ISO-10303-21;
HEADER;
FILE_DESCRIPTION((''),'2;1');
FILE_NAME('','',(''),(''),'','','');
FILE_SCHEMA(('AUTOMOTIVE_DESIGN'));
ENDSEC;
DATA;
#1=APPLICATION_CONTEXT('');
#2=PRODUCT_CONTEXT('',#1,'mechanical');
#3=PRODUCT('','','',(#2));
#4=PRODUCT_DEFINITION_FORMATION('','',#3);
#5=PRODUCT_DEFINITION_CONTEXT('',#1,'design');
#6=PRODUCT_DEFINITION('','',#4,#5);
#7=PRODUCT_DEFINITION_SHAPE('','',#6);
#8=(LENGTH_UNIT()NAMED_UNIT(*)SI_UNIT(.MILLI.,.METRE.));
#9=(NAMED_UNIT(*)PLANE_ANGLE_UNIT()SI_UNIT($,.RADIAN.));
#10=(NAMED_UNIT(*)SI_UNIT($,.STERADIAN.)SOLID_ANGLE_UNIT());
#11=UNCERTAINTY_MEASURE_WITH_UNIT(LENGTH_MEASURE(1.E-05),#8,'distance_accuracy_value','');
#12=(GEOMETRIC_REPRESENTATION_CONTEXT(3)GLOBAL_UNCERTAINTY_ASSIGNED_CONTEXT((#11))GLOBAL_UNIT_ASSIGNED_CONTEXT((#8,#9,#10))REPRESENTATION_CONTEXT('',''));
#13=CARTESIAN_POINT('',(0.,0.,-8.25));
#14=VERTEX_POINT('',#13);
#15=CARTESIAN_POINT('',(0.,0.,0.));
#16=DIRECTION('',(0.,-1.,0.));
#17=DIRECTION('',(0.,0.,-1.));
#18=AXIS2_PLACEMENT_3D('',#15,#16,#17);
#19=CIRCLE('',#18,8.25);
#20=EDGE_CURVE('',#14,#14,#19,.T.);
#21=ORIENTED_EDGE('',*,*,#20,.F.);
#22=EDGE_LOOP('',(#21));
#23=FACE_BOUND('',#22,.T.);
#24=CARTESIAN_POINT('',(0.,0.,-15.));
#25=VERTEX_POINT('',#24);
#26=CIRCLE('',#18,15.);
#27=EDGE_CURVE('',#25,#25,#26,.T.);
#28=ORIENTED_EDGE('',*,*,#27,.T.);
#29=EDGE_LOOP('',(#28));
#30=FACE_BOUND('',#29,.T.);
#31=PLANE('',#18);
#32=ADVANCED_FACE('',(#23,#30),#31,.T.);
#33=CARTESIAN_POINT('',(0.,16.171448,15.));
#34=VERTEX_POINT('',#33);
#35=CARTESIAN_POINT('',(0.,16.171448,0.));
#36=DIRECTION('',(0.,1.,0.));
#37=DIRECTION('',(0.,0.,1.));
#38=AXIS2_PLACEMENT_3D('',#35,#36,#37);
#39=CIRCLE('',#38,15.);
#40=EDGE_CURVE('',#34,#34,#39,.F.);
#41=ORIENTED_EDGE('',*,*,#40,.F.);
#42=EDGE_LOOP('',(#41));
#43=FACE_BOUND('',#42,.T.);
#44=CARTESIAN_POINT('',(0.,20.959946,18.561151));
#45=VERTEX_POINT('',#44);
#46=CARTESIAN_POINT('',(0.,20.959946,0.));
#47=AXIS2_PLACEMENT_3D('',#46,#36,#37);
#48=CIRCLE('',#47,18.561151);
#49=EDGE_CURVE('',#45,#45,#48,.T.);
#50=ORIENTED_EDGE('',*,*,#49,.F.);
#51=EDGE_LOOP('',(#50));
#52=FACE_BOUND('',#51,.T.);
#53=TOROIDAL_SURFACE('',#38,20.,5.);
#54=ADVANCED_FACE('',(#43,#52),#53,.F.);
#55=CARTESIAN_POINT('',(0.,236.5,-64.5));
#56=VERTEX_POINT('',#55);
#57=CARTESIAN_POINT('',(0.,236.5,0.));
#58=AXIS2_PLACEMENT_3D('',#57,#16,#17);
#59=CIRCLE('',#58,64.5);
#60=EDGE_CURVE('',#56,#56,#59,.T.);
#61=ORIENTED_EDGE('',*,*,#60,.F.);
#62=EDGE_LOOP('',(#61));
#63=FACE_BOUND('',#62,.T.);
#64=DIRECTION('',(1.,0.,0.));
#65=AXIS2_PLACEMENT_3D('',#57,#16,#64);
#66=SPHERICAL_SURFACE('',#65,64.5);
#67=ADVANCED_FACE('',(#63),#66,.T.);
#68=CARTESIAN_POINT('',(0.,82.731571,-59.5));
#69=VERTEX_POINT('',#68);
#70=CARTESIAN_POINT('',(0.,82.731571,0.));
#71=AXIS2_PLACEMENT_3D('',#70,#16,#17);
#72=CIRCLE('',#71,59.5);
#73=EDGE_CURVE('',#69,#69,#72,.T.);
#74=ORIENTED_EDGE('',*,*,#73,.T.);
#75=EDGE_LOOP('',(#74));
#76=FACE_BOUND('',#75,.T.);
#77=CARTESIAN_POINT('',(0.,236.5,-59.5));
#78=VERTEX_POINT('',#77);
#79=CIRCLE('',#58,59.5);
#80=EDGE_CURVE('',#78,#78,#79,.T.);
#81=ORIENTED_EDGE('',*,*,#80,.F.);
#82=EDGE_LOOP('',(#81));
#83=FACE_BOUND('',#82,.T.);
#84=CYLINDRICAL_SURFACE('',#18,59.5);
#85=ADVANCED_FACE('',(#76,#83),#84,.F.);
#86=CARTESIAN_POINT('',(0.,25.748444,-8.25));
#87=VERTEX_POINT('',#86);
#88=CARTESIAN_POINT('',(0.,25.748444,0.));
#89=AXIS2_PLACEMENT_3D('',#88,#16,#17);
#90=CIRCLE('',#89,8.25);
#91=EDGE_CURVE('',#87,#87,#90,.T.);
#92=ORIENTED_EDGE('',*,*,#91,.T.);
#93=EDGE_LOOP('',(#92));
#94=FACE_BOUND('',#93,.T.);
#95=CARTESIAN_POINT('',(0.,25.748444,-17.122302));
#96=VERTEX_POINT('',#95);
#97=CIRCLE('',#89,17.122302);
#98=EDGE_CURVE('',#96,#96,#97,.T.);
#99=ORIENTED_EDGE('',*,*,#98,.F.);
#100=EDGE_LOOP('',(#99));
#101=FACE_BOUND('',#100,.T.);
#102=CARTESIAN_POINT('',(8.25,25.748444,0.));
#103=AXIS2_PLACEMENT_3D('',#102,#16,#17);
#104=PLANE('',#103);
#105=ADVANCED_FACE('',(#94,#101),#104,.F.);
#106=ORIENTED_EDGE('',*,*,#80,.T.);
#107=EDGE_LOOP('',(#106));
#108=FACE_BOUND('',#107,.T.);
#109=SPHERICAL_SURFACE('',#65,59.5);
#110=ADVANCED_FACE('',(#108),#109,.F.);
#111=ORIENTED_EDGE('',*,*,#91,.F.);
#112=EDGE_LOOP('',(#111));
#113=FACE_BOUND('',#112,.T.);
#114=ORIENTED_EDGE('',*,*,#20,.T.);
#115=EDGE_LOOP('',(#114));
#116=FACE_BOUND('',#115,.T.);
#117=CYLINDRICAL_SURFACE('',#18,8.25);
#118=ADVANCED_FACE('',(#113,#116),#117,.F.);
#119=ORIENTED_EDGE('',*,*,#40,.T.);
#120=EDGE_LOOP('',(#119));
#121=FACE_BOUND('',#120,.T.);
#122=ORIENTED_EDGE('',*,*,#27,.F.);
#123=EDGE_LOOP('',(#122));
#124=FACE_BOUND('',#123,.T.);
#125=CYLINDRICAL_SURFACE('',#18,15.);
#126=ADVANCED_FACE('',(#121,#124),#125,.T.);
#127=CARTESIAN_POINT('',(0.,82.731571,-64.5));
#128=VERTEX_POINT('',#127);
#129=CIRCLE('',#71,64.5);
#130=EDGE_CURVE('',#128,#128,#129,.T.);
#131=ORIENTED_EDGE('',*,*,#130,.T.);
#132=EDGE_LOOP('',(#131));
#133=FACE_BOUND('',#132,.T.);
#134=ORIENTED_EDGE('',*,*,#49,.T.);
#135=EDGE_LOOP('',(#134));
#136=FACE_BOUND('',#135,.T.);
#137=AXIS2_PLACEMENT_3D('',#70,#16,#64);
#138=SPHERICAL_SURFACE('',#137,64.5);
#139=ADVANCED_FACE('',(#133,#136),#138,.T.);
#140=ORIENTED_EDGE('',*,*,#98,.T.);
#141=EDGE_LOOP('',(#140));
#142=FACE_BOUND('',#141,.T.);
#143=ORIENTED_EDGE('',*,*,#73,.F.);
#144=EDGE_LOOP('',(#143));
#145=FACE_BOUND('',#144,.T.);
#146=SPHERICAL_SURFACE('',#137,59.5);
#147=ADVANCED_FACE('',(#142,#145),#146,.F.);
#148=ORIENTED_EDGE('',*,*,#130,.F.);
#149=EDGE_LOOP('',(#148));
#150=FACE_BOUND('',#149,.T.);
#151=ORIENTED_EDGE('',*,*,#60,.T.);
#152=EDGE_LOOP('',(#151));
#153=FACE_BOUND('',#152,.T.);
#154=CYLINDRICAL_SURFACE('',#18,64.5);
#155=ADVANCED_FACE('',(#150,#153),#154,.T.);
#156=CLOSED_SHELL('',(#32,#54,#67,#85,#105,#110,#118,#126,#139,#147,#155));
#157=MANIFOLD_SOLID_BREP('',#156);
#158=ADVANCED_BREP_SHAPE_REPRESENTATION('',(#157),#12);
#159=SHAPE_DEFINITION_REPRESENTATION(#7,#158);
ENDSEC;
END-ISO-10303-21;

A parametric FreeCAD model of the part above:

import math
import FreeCAD as App
import Part
import Sketcher
Q = App.Units.Quantity


def edges_at(feature, points):
    """Names of the edges that pass closest to the given points."""
    edges = feature.Shape.Edges
    near = lambda p: min(range(len(edges)), key=lambda i: edges[i].distToShape(Part.Vertex(*p))[0])
    return sorted({f"Edge{near(p) + 1}" for p in points})

doc = App.newDocument("Part")
body = doc.addObject("PartDesign::Body", "Body")

# Sketch on XY plane
sketch1 = body.newObject("Sketcher::SketchObject", "Sketch")
sketch1.AttachmentSupport = (doc.getObject("XY_Plane"), [""])
sketch1.MapMode = "FlatFace"
sketch1.addGeometry([
    Part.LineSegment(App.Vector(0, 0, 0), App.Vector(15, 0, 0)),  # 0
    Part.LineSegment(App.Vector(15, 0, 0), App.Vector(15, 20, 0)),  # 1
    Part.ArcOfCircle(Part.Circle(App.Vector(0, 82.731571, 0), App.Vector(0, 0, 1), 64.5), math.radians(-76.552273), math.radians(0)),  # 2
    Part.LineSegment(App.Vector(64.5, 82.731571, 0), App.Vector(64.5, 236.5, 0)),  # 3
    Part.ArcOfCircle(Part.Circle(App.Vector(0, 236.5, 0), App.Vector(0, 0, 1), 64.5), math.radians(0), math.radians(90)),  # 4
    Part.LineSegment(App.Vector(0, 301, 0), App.Vector(0, 0, 0)),  # 5
], False)
sketch1.addConstraint([
    Sketcher.Constraint("Coincident", 0, 2, 1, 1),
    Sketcher.Constraint("Coincident", 1, 2, 2, 1),
    Sketcher.Constraint("Tangent", 2, 2, 3, 1),
    Sketcher.Constraint("Tangent", 3, 2, 4, 1),
    Sketcher.Constraint("Coincident", 4, 2, 5, 1),
    Sketcher.Constraint("Coincident", 5, 2, 0, 1),
    Sketcher.Constraint("Horizontal", 0),
    Sketcher.Constraint("Vertical", 1),
    Sketcher.Constraint("Vertical", 3),
    Sketcher.Constraint("Vertical", 5),
    Sketcher.Constraint("Coincident", 5, 2, -1, 1),
    Sketcher.Constraint("Equal", 2, 4),
    Sketcher.Constraint("PointOnObject", 2, 3, -2),
    Sketcher.Constraint("Radius", 2, Q("64.5 mm")),
    Sketcher.Constraint("DistanceX", 0, 1, 0, 2, Q("15 mm")),
    Sketcher.Constraint("DistanceY", 1, 1, 1, 2, Q("20 mm")),
    Sketcher.Constraint("DistanceY", 5, 2, 5, 1, Q("301 mm")),
])
revolution = body.newObject("PartDesign::Revolution", "Revolution")
revolution.Profile = sketch1
revolution.ReferenceAxis = (sketch1, ["V_Axis"])
revolution.Angle = 360

# Sketch on XZ plane
sketch2 = body.newObject("Sketcher::SketchObject", "Sketch001")
sketch2.AttachmentSupport = (doc.getObject("XZ_Plane"), [""])
sketch2.MapMode = "FlatFace"
sketch2.addGeometry(Part.Circle(App.Vector(0, 0, 0), App.Vector(0, 0, 1), 8.25), False)
sketch2.addConstraint([
    Sketcher.Constraint("Coincident", 0, 3, -1, 1),
    Sketcher.Constraint("Diameter", 0, Q("16.5 mm")),
])
doc.recompute()
hole = body.newObject("PartDesign::Hole", "Hole")
hole.Profile = sketch2
hole.ThreadType = "None"
hole.Diameter = 16.5
hole.DepthType = "Dimension"
hole.Depth = 15.0429
hole.DrillPoint = "Angled"
hole.DrillPointAngle = 118
doc.recompute()

fillet = body.newObject("PartDesign::Fillet", "Fillet")
fillet.Base = (hole, edges_at(hole, [(0, 20, 15)]))
fillet.Radius = 5

# Sketch on XY plane
sketch3 = body.newObject("Sketcher::SketchObject", "Sketch002")
sketch3.AttachmentSupport = (doc.getObject("XY_Plane"), [""])
sketch3.MapMode = "FlatFace"
sketch3.addGeometry([
    Part.LineSegment(App.Vector(8.25, 15.0429, 0), App.Vector(8.25, 25.748444, 0)),  # 0
    Part.LineSegment(App.Vector(8.25, 25.748444, 0), App.Vector(17.122302, 25.748444, 0)),  # 1
    Part.ArcOfCircle(Part.Circle(App.Vector(0, 82.731571, 0), App.Vector(0, 0, 1), 59.5), math.radians(-73.275517), math.radians(0)),  # 2
    Part.LineSegment(App.Vector(59.5, 82.731571, 0), App.Vector(59.5, 236.5, 0)),  # 3
    Part.ArcOfCircle(Part.Circle(App.Vector(0, 236.5, 0), App.Vector(0, 0, 1), 59.5), math.radians(0), math.radians(90)),  # 4
    Part.LineSegment(App.Vector(0, 296, 0), App.Vector(0, 15.0429, 0)),  # 5
    Part.LineSegment(App.Vector(0, 15.0429, 0), App.Vector(8.25, 15.0429, 0)),  # 6
], False)
sketch3.addConstraint([
    Sketcher.Constraint("Coincident", 0, 2, 1, 1),
    Sketcher.Constraint("Coincident", 1, 2, 2, 1),
    Sketcher.Constraint("Tangent", 2, 2, 3, 1),
    Sketcher.Constraint("Tangent", 3, 2, 4, 1),
    Sketcher.Constraint("Coincident", 4, 2, 5, 1),
    Sketcher.Constraint("Coincident", 5, 2, 6, 1),
    Sketcher.Constraint("Coincident", 6, 2, 0, 1),
    Sketcher.Constraint("Vertical", 0),
    Sketcher.Constraint("Horizontal", 1),
    Sketcher.Constraint("Vertical", 3),
    Sketcher.Constraint("Vertical", 5),
    Sketcher.Constraint("Horizontal", 6),
    Sketcher.Constraint("Equal", 2, 4),
    Sketcher.Constraint("PointOnObject", 2, 3, -2),
    Sketcher.Constraint("PointOnObject", 4, 2, -2),
    Sketcher.Constraint("Radius", 2, Q("59.5 mm")),
    Sketcher.Constraint("DistanceY", -1, 1, 4, 2, Q("296 mm")),
    Sketcher.Constraint("DistanceX", 6, 1, 6, 2, Q("8.25 mm")),
    Sketcher.Constraint("DistanceY", 5, 2, 5, 1, Q("280.9571 mm")),
    Sketcher.Constraint("DistanceY", 3, 1, 3, 2, Q("153.768429 mm")),
    Sketcher.Constraint("DistanceX", 1, 1, 1, 2, Q("8.872302 mm")),
])
groove = body.newObject("PartDesign::Groove", "Groove")
groove.Profile = sketch3
groove.ReferenceAxis = (sketch3, ["V_Axis"])
groove.Angle = 360

doc.recompute()
